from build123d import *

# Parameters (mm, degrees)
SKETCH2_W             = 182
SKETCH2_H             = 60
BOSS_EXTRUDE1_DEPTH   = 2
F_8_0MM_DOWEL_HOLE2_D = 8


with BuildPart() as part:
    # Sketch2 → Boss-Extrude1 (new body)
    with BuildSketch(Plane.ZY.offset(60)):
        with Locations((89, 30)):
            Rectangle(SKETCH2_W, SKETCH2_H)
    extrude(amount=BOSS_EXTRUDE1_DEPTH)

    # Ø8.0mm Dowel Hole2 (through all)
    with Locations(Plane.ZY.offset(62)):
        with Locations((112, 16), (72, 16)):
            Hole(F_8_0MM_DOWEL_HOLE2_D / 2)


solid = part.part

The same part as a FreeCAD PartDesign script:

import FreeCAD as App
import Part
import Sketcher

V = App.Vector
Q = App.Units.Quantity


def add_polygon(sketch, points):
    """Adds a closed chain of lines whose ends are joined by coincident constraints."""
    first, n = sketch.GeometryCount, len(points)
    for a, b in zip(points, points[1:] + points[:1]):
        sketch.addGeometry(Part.LineSegment(App.Vector(*a, 0), App.Vector(*b, 0)), False)
    for i in range(n):
        sketch.addConstraint(Sketcher.Constraint("Coincident", first + i, 2, first + (i + 1) % n, 1))

doc = App.newDocument("Part")
body = doc.addObject("PartDesign::Body", "Body")

sketch1 = body.newObject("Sketcher::SketchObject", "Sketch")
sketch1.AttachmentSupport = (doc.getObject("YZ_Plane"), [""])
sketch1.MapMode = "FlatFace"
sketch1.AttachmentOffset = App.Placement(V(0, 0, -60), App.Rotation())
add_polygon(sketch1, [(60, -2), (0, -2), (0, 180), (60, 180)])
sketch1.addConstraint([
    Sketcher.Constraint("Horizontal", 0),
    Sketcher.Constraint("Vertical", 1),
    Sketcher.Constraint("Horizontal", 2),
    Sketcher.Constraint("Vertical", 3),
    Sketcher.Constraint("PointOnObject", 0, 2, -2),
    Sketcher.Constraint("DistanceX", 0, 2, 0, 1, Q("60 mm")),
    Sketcher.Constraint("DistanceY", 1, 1, 1, 2, Q("182 mm")),
    Sketcher.Constraint("DistanceY", 0, 2, -1, 1, Q("2 mm")),
])
pad1 = body.newObject("PartDesign::Pad", "Pad")
pad1.Profile = sketch1
pad1.Length = 2
pad1.Reversed = True

sketch2 = body.newObject("Sketcher::SketchObject", "Sketch001")
sketch2.AttachmentSupport = (doc.getObject("YZ_Plane"), [""])
sketch2.MapMode = "FlatFace"
sketch2.AttachmentOffset = App.Placement(V(0, 0, -62), App.Rotation())
sketch2.addGeometry([
    Part.Circle(V(16, 112, 0), V(0, 0, 1), 4),
    Part.Circle(V(16, 72, 0), V(0, 0, 1), 4),
], False)
sketch2.addConstraint([
    Sketcher.Constraint("Equal", 0, 1),
    Sketcher.Constraint("Vertical", 0, 3, 1, 3),
    Sketcher.Constraint("Diameter", 0, Q("8 mm")),
    Sketcher.Constraint("DistanceX", -1, 1, 0, 3, Q("16 mm")),
    Sketcher.Constraint("DistanceY", -1, 1, 0, 3, Q("112 mm")),
    Sketcher.Constraint("DistanceY", -1, 1, 1, 3, Q("72 mm")),
])
doc.recompute()
hole = body.newObject("PartDesign::Hole", "Hole")
hole.Profile = sketch2
hole.ThreadType = "None"
hole.Diameter = 8
hole.DepthType = "ThroughAll"
hole.Reversed = True

doc.recompute()
